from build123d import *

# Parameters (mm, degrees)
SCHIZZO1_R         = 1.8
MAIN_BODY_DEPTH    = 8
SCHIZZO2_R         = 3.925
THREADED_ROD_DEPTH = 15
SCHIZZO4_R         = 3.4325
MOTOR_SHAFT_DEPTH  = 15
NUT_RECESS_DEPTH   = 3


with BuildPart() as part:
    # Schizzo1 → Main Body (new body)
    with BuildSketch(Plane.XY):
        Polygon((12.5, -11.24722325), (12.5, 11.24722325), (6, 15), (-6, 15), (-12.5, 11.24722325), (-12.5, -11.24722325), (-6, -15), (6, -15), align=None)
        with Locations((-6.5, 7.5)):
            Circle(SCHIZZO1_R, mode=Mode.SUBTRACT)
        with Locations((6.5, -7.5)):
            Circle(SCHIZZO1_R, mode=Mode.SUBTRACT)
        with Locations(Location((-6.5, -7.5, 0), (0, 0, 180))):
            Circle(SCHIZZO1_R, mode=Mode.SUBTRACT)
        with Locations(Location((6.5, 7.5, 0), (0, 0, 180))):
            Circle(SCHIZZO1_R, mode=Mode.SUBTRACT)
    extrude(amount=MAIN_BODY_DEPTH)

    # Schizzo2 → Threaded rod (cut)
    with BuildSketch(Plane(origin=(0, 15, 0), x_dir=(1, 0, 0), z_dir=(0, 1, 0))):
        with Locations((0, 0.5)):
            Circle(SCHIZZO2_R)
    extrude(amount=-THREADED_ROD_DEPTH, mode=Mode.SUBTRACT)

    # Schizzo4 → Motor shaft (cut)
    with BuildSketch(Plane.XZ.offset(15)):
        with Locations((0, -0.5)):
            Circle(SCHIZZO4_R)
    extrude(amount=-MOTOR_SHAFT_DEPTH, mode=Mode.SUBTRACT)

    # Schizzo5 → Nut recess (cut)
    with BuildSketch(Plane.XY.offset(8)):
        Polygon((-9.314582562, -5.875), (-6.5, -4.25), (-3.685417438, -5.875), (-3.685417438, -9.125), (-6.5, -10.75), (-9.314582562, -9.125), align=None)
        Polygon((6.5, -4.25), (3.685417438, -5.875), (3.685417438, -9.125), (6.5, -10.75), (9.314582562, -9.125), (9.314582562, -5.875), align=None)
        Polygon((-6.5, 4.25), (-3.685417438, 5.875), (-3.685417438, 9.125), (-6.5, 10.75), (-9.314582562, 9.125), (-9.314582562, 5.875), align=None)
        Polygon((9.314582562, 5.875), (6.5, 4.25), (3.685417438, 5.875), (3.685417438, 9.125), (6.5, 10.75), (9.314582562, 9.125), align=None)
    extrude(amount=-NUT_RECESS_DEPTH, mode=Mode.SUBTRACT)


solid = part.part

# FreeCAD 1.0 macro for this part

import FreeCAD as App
import Part
import Sketcher

V = App.Vector
Q = App.Units.Quantity

doc = App.newDocument("Part")
params = doc.addObject("Spreadsheet::Sheet", "Params")
for row, (alias, value) in enumerate([
    ("sketch1_diameter", "3.6 mm"),
    ("sketch1_width", "12 mm"),
    ("pad1_length", "8 mm"),
    ("sketch2_diameter", "7.85 mm"),
    ("pocket1_length", "15 mm"),
    ("pocket2_length", "15 mm"),
    ("sketch4_height", "3.25 mm"),
    ("pocket3_length", "3 mm"),
], start=1):
    params.set(f"A{row}", alias)
    params.set(f"B{row}", "=" + value)
    params.setAlias(f"B{row}", alias)

body = doc.addObject("PartDesign::Body", "Body")

# Sketch on XY plane
sketch1 = body.newObject("Sketcher::SketchObject", "Sketch")
sketch1.AttachmentSupport = (doc.getObject("XY_Plane"), [""])
sketch1.MapMode = "FlatFace"
sketch1.addGeometry([
    Part.LineSegment(V(12.5, -11.2, 0), V(12.5, 11.2, 0)),  # 0
    Part.LineSegment(V(12.5, 11.2, 0), V(6, 15, 0)),  # 1
    Part.LineSegment(V(6, 15, 0), V(-6, 15, 0)),  # 2
    Part.LineSegment(V(-6, 15, 0), V(-12.5, 11.2, 0)),  # 3
    Part.LineSegment(V(-12.5, 11.2, 0), V(-12.5, -11.2, 0)),  # 4
    Part.LineSegment(V(-12.5, -11.2, 0), V(-6, -15, 0)),  # 5
    Part.LineSegment(V(-6, -15, 0), V(6, -15, 0)),  # 6
    Part.LineSegment(V(6, -15, 0), V(12.5, -11.2, 0)),  # 7
    Part.Circle(V(-6.5, -7.5, 0), V(0, 0, 1), 1.8),  # 8
    Part.Circle(V(6.5, -7.5, 0), V(0, 0, 1), 1.8),  # 9
    Part.Circle(V(-6.5, 7.5, 0), V(0, 0, 1), 1.8),  # 10
    Part.Circle(V(6.5, 7.5, 0), V(0, 0, 1), 1.8),  # 11
], False)
sketch1.addConstraint([
    Sketcher.Constraint("Coincident", 0, 2, 1, 1),
    Sketcher.Constraint("Coincident", 1, 2, 2, 1),
    Sketcher.Constraint("Coincident", 2, 2, 3, 1),
    Sketcher.Constraint("Coincident", 3, 2, 4, 1),
    Sketcher.Constraint("Coincident", 4, 2, 5, 1),
    Sketcher.Constraint("Coincident", 5, 2, 6, 1),
    Sketcher.Constraint("Coincident", 6, 2, 7, 1),
    Sketcher.Constraint("Coincident", 7, 2, 0, 1),
    Sketcher.Constraint("Vertical", 0),
    Sketcher.Constraint("Horizontal", 2),
    Sketcher.Constraint("Vertical", 4),
    Sketcher.Constraint("Horizontal", 6),
    Sketcher.Constraint("Equal", 8, 9),
    Sketcher.Constraint("Equal", 9, 10),
    Sketcher.Constraint("Equal", 10, 11),
    Sketcher.Constraint("Symmetric", 9, 3, 10, 3, -1, 1),
    Sketcher.Constraint("Symmetric", 8, 3, 11, 3, -1, 1),
    Sketcher.Constraint("Symmetric", 0, 2, 4, 2, -1, 1),
    Sketcher.Constraint("Symmetric", 1, 2, 5, 2, -1, 1),
    Sketcher.Constraint("Symmetric", 8, 3, 9, 3, -2),
    Sketcher.Constraint("Parallel", 3, 7),
    Sketcher.Constraint("Horizontal", 0, 2, 3, 2),
    Sketcher.Constraint("Horizontal", 4, 2, 7, 2),
    Sketcher.Constraint("Vertical", 2, 2, 5, 2),
    Sketcher.Constraint("Diameter", 8, 3.6),
    Sketcher.Constraint("DistanceX", 2, 2, 2, 1, 12.0),
    Sketcher.Constraint("Angle", 1, Q("150 deg")),
    Sketcher.Constraint("DistanceY", -1, 1, 1, 2, 15.0),
    Sketcher.Constraint("DistanceX", 8, 3, 9, 3, 13.0),
    Sketcher.Constraint("DistanceY", 8, 3, 10, 3, 15.0),
    Sketcher.Constraint("DistanceX", 11, 3, 0, 2, 6.0),
])
sketch1.setExpression("Constraints[24]", "Params.sketch1_diameter")
sketch1.setExpression("Constraints[25]", "Params.sketch1_width")
pad1 = body.newObject("PartDesign::Pad", "Pad")
pad1.Profile = sketch1
pad1.setExpression("Length", "Params.pad1_length")

# Sketch on XZ plane
sketch2 = body.newObject("Sketcher::SketchObject", "Sketch001")
sketch2.AttachmentSupport = (doc.getObject("XZ_Plane"), [""])
sketch2.MapMode = "FlatFace"
sketch2.AttachmentOffset = App.Placement(V(0, 0, -15), App.Rotation())
sketch2.addGeometry(Part.Circle(V(0, -0.5, 0), V(0, 0, 1), 3.9), False)
sketch2.addConstraint([
    Sketcher.Constraint("PointOnObject", 0, 3, -2),
    Sketcher.Constraint("Diameter", 0, 7.85),
    Sketcher.Constraint("DistanceY", 0, 3, -1, 1, 0.5),
])
sketch2.setExpression("Constraints[1]", "Params.sketch2_diameter")
pocket1 = body.newObject("PartDesign::Pocket", "Pocket")
pocket1.Profile = sketch2
pocket1.setExpression("Length", "Params.pocket1_length")
pocket1.Reversed = True

# Sketch on XZ plane
sketch3 = body.newObject("Sketcher::SketchObject", "Sketch002")
sketch3.AttachmentSupport = (doc.getObject("XZ_Plane"), [""])
sketch3.MapMode = "FlatFace"
sketch3.AttachmentOffset = App.Placement(V(0, 0, 15), App.Rotation())
sketch3.addGeometry(Part.Circle(V(0, -0.5, 0), V(0, 0, 1), 3.4), False)
sketch3.addConstraint([
    Sketcher.Constraint("PointOnObject", 0, 3, -2),
    Sketcher.Constraint("Diameter", 0, 6.865),
    Sketcher.Constraint("DistanceY", 0, 3, -1, 1, 0.5),
])
pocket2 = body.newObject("PartDesign::Pocket", "Pocket001")
pocket2.Profile = sketch3
pocket2.setExpression("Length", "Params.pocket2_length")

# Sketch on XY plane
sketch4 = body.newObject("Sketcher::SketchObject", "Sketch003")
sketch4.AttachmentSupport = (doc.getObject("XY_Plane"), [""])
sketch4.MapMode = "FlatFace"
sketch4.AttachmentOffset = App.Placement(V(0, 0, 8), App.Rotation())
sketch4.addGeometry([
    Part.LineSegment(V(-6.5, -4.2, 0), V(-9.3, -5.9, 0)),  # 0
    Part.LineSegment(V(-9.3, -5.9, 0), V(-9.3, -9.1, 0)),  # 1
    Part.LineSegment(V(-9.3, -9.1, 0), V(-6.5, -10.8, 0)),  # 2
    Part.LineSegment(V(-6.5, -10.8, 0), V(-3.7, -9.1, 0)),  # 3
    Part.LineSegment(V(-3.7, -9.1, 0), V(-3.7, -5.9, 0)),  # 4
    Part.LineSegment(V(-3.7, -5.9, 0), V(-6.5, -4.2, 0)),  # 5
    Part.LineSegment(V(6.5, -4.2, 0), V(3.7, -5.9, 0)),  # 6
    Part.LineSegment(V(3.7, -5.9, 0), V(3.7, -9.1, 0)),  # 7
    Part.LineSegment(V(3.7, -9.1, 0), V(6.5, -10.8, 0)),  # 8
    Part.LineSegment(V(6.5, -10.8, 0), V(9.3, -9.1, 0)),  # 9
    Part.LineSegment(V(9.3, -9.1, 0), V(9.3, -5.9, 0)),  # 10
    Part.LineSegment(V(9.3, -5.9, 0), V(6.5, -4.2, 0)),  # 11
    Part.LineSegment(V(-6.5, 4.2, 0), V(-3.7, 5.9, 0)),  # 12
    Part.LineSegment(V(-3.7, 5.9, 0), V(-3.7, 9.1, 0)),  # 13
    Part.LineSegment(V(-3.7, 9.1, 0), V(-6.5, 10.8, 0)),  # 14
    Part.LineSegment(V(-6.5, 10.8, 0), V(-9.3, 9.1, 0)),  # 15
    Part.LineSegment(V(-9.3, 9.1, 0), V(-9.3, 5.9, 0)),  # 16
    Part.LineSegment(V(-9.3, 5.9, 0), V(-6.5, 4.2, 0)),  # 17
    Part.LineSegment(V(6.5, 4.2, 0), V(9.3, 5.9, 0)),  # 18
    Part.LineSegment(V(9.3, 5.9, 0), V(9.3, 9.1, 0)),  # 19
    Part.LineSegment(V(9.3, 9.1, 0), V(6.5, 10.8, 0)),  # 20
    Part.LineSegment(V(6.5, 10.8, 0), V(3.7, 9.1, 0)),  # 21
    Part.LineSegment(V(3.7, 9.1, 0), V(3.7, 5.9, 0)),  # 22
    Part.LineSegment(V(3.7, 5.9, 0), V(6.5, 4.2, 0)),  # 23
], False)
sketch4.addConstraint([
    Sketcher.Constraint("Coincident", 0, 2, 1, 1),
    Sketcher.Constraint("Coincident", 1, 2, 2, 1),
    Sketcher.Constraint("Coincident", 2, 2, 3, 1),
    Sketcher.Constraint("Coincident", 3, 2, 4, 1),
    Sketcher.Constraint("Coincident", 4, 2, 5, 1),
    Sketcher.Constraint("Coincident", 5, 2, 0, 1),
    Sketcher.Constraint("Coincident", 6, 2, 7, 1),
    Sketcher.Constraint("Coincident", 7, 2, 8, 1),
    Sketcher.Constraint("Coincident", 8, 2, 9, 1),
    Sketcher.Constraint("Coincident", 9, 2, 10, 1),
    Sketcher.Constraint("Coincident", 10, 2, 11, 1),
    Sketcher.Constraint("Coincident", 11, 2, 6, 1),
    Sketcher.Constraint("Coincident", 12, 2, 13, 1),
    Sketcher.Constraint("Coincident", 13, 2, 14, 1),
    Sketcher.Constraint("Coincident", 14, 2, 15, 1),
    Sketcher.Constraint("Coincident", 15, 2, 16, 1),
    Sketcher.Constraint("Coincident", 16, 2, 17, 1),
    Sketcher.Constraint("Coincident", 17, 2, 12, 1),
    Sketcher.Constraint("Coincident", 18, 2, 19, 1),
    Sketcher.Constraint("Coincident", 19, 2, 20, 1),
    Sketcher.Constraint("Coincident", 20, 2, 21, 1),
    Sketcher.Constraint("Coincident", 21, 2, 22, 1),
    Sketcher.Constraint("Coincident", 22, 2, 23, 1),
    Sketcher.Constraint("Coincident", 23, 2, 18, 1),
    Sketcher.Constraint("Vertical", 1),
    Sketcher.Constraint("Vertical", 4),
    Sketcher.Constraint("Vertical", 7),
    Sketcher.Constraint("Vertical", 10),
    Sketcher.Constraint("Vertical", 13),
    Sketcher.Constraint("Vertical", 16),
    Sketcher.Constraint("Vertical", 19),
    Sketcher.Constraint("Vertical", 22),
    Sketcher.Constraint("Symmetric", 6, 2, 12, 2, -1, 1),
    Sketcher.Constraint("Symmetric", 8, 2, 14, 2, -1, 1),
    Sketcher.Constraint("Symmetric", 9, 2, 15, 2, -1, 1),
    Sketcher.Constraint("Symmetric", 11, 2, 17, 2, -1, 1),
    Sketcher.Constraint("Symmetric", 0, 2, 18, 2, -1, 1),
    Sketcher.Constraint("Symmetric", 2, 2, 20, 2, -1, 1),
    Sketcher.Constraint("Symmetric", 3, 2, 21, 2, -1, 1),
    Sketcher.Constraint("Symmetric", 5, 2, 23, 2, -1, 1),
    Sketcher.Constraint("Symmetric", 4, 2, 6, 2, -2),
    Sketcher.Constraint("Symmetric", 2, 2, 8, 2, -2),
    Sketcher.Constraint("Symmetric", 1, 2, 9, 2, -2),
    Sketcher.Constraint("Symmetric", 5, 2, 11, 2, -2),
    Sketcher.Constraint("Parallel", 0, 3),
    Sketcher.Constraint("Parallel", 2, 5),
    Sketcher.Constraint("Parallel", 3, 6),
    Sketcher.Constraint("Parallel", 5, 8),
    Sketcher.Constraint("Parallel", 8, 11),
    Sketcher.Constraint("Parallel", 11, 14),
    Sketcher.Constraint("Parallel", 14, 17),
    Sketcher.Constraint("Parallel", 17, 20),
    Sketcher.Constraint("Parallel", 20, 23),
    Sketcher.Constraint("Horizontal", 1, 2, 3, 2),
    Sketcher.Constraint("Horizontal", 0, 2, 4, 2),
    Sketcher.Constraint("Angle", 0, Q("-150 deg")),
    Sketcher.Constraint("DistanceX", 0, 2, 6, 2, 13.0),
    Sketcher.Constraint("DistanceY", 4, 2, 13, 2, 15.0),
    Sketcher.Constraint("DistanceY", 1, 2, 1, 1, 3.25),
    Sketcher.Constraint("DistanceY", 2, 2, 5, 2, 6.5),
])
sketch4.setExpression("Constraints[58]", "Params.sketch4_height")
pocket3 = body.newObject("PartDesign::Pocket", "Pocket002")
pocket3.Profile = sketch4
pocket3.setExpression("Length", "Params.pocket3_length")

doc.recompute()
